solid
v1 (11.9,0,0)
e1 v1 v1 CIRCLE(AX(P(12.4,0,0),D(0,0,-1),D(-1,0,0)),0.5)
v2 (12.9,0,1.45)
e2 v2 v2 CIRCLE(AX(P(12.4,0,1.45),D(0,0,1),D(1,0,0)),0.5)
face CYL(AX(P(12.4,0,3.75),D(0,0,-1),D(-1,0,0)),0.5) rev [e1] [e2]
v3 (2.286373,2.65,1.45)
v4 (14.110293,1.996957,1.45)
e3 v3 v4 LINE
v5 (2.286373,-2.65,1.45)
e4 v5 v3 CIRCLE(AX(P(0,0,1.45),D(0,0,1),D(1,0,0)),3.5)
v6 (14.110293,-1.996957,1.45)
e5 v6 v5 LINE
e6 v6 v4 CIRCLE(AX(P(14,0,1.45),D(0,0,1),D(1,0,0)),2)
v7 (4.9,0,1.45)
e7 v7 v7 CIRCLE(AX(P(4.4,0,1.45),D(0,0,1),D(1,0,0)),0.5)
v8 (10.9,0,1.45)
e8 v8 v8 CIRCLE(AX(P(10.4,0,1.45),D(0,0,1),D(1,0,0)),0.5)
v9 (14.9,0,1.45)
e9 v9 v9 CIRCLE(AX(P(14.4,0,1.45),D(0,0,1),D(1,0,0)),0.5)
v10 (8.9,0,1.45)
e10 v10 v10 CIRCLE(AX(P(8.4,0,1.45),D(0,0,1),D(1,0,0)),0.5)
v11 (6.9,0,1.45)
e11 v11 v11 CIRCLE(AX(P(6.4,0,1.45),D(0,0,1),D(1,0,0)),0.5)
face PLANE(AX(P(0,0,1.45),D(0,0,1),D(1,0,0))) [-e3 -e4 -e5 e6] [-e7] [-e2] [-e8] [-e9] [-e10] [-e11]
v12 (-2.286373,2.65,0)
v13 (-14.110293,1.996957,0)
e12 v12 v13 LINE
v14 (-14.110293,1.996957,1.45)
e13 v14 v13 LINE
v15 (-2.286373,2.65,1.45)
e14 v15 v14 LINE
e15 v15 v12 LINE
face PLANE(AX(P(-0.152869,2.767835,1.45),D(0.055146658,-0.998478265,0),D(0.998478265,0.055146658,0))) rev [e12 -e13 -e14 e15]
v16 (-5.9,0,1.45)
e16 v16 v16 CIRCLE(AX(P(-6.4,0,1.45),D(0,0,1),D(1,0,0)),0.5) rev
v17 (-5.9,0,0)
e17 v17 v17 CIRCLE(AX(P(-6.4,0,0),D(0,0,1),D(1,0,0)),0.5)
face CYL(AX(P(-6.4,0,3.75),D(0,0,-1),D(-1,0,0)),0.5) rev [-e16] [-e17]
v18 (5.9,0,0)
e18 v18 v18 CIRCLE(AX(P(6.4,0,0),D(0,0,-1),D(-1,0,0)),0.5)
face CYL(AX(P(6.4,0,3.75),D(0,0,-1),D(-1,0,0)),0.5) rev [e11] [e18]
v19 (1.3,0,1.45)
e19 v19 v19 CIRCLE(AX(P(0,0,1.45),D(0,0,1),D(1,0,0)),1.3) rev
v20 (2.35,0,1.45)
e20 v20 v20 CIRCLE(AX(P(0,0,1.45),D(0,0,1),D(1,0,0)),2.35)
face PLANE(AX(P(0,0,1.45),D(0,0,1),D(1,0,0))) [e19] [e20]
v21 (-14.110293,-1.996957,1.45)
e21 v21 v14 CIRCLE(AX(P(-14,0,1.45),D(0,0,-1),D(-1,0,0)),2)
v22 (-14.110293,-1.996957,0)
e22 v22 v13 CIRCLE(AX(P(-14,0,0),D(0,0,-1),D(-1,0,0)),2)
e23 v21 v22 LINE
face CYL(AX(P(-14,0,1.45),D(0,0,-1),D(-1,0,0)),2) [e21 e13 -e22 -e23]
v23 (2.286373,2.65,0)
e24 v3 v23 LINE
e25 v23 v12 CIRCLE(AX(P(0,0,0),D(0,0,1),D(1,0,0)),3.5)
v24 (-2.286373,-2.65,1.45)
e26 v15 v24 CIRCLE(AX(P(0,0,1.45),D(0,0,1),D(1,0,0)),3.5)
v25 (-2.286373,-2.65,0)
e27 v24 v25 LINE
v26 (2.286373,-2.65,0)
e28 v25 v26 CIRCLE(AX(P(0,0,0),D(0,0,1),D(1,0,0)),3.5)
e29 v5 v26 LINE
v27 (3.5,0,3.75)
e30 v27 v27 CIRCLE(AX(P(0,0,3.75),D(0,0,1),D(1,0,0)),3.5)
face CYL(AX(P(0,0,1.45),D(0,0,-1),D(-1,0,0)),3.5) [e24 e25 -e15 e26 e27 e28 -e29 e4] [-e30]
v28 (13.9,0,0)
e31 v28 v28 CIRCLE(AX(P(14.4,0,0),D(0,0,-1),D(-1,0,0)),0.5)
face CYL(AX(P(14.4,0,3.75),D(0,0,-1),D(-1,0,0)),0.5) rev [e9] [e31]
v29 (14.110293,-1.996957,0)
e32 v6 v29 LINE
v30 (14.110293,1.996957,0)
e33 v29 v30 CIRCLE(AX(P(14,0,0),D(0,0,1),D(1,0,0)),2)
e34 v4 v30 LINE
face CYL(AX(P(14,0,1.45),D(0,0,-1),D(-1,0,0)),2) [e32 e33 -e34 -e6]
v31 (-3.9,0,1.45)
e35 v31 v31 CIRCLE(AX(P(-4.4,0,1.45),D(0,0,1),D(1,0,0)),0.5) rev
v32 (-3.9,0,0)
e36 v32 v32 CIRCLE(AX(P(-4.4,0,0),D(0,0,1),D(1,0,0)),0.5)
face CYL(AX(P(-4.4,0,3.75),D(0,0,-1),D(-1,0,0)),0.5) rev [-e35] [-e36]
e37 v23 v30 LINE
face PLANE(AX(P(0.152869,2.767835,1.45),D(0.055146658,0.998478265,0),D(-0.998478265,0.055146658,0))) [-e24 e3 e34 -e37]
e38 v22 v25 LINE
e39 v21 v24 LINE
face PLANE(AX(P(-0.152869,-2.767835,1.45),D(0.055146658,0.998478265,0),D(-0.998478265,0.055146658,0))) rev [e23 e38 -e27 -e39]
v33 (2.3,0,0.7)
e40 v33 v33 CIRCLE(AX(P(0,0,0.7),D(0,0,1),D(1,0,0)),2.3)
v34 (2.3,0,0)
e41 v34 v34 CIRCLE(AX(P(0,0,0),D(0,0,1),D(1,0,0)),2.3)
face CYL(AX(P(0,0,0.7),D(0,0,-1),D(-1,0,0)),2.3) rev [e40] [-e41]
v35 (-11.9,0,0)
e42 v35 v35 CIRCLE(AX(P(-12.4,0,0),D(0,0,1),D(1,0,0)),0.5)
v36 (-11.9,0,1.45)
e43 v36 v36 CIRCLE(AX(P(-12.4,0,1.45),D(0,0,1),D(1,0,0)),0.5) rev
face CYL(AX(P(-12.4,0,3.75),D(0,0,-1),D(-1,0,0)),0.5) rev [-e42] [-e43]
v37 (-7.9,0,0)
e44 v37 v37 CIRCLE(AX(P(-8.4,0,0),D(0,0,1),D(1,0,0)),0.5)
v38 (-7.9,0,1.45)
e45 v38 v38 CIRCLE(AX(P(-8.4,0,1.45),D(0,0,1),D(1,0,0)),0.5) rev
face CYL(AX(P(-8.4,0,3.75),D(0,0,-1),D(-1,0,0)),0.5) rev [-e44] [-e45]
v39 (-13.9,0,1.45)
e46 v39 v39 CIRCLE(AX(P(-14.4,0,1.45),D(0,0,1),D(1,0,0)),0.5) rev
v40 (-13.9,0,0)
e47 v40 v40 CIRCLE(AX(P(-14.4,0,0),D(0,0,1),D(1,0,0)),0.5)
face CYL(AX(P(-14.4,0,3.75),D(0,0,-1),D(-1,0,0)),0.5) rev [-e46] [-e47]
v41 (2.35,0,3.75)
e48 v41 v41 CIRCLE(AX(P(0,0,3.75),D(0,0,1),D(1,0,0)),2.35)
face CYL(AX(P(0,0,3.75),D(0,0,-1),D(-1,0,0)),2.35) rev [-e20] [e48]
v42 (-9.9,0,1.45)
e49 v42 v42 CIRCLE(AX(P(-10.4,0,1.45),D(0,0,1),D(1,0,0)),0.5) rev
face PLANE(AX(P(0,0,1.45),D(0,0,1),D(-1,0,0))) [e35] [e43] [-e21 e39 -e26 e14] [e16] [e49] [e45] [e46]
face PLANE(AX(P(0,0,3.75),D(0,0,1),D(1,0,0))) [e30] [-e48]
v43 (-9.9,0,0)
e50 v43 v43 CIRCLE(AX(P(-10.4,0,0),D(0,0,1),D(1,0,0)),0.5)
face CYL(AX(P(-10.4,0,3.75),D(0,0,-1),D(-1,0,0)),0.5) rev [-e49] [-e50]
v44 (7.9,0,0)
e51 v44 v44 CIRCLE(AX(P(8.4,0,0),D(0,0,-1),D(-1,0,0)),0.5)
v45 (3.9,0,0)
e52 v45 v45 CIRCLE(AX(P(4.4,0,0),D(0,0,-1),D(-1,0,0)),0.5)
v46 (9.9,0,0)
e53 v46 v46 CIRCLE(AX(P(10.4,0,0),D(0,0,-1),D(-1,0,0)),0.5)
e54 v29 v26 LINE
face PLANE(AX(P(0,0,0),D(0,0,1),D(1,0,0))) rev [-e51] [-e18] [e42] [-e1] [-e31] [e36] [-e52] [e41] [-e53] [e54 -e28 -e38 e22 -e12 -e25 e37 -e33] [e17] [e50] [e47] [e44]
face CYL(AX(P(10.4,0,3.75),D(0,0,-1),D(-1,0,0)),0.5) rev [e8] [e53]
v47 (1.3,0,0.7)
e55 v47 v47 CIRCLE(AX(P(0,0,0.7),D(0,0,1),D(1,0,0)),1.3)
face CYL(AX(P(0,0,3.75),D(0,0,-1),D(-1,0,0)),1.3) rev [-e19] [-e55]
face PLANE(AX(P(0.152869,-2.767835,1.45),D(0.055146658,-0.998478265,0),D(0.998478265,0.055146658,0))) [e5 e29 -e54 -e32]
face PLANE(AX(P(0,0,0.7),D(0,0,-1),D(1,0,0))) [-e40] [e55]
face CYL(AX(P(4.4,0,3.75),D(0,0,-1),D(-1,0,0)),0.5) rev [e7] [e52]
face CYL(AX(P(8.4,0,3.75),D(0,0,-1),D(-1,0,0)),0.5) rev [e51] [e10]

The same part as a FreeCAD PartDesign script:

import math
import FreeCAD as App
import Part
import Sketcher

V = App.Vector

doc = App.newDocument("Part")
body = doc.addObject("PartDesign::Body", "Body")

sketch1 = doc.addObject("Sketcher::SketchObject", "Sketch")
body.addObject(sketch1)
sketch1.AttachmentSupport = (doc.XY_Plane, [""])
sketch1.MapMode = "FlatFace"
sketch1.addGeometry([
    Part.ArcOfCircle(Part.Circle(V(0, 0, 0), V(0, 0, 1), 3.5), math.radians(49.212962), math.radians(124.464489)),
    Part.ArcOfCircle(Part.Circle(V(0, 0, 0), V(0, 0, 1), 3.5), math.radians(124.464489), math.radians(235.535511)),
    Part.ArcOfCircle(Part.Circle(V(0, 0, 0), V(0, 0, 1), 3.5), math.radians(-124.464489), math.radians(-49.212962)),
    Part.LineSegment(V(2.286373, -2.65, 0), V(14.110293, -1.996957, 0)),
    Part.ArcOfCircle(Part.Circle(V(14, 0, 0), V(0, 0, 1), 2), math.radians(-86.838725), math.radians(86.838726)),
    Part.LineSegment(V(14.110293, 1.996957, 0), V(2.286373, 2.65, 0)),
], False)
sketch1.addConstraint([
    Sketcher.Constraint("Tangent", 0, 2, 1, 1),
    Sketcher.Constraint("Tangent", 1, 2, 2, 1),
    Sketcher.Constraint("Coincident", 2, 2, 3, 1),
    Sketcher.Constraint("Tangent", 3, 2, 4, 1),
    Sketcher.Constraint("Tangent", 4, 2, 5, 1),
    Sketcher.Constraint("Coincident", 5, 2, 0, 1),
    Sketcher.Constraint("Coincident", 0, 3, -1, 1),
    Sketcher.Constraint("Coincident", 2, 3, -1, 1),
    Sketcher.Constraint("Symmetric", 3, 2, 4, 2, -1),
    Sketcher.Constraint("Vertical", 0, 2, 1, 2),
    Sketcher.Constraint("Radius", 4, 2.0),
    Sketcher.Constraint("Radius", 0, 3.5),
    Sketcher.Constraint("DistanceX", -1, 1, 4, 3, 14.0),
    Sketcher.Constraint("DistanceY", 2, 2, 5, 2, 5.3),
    Sketcher.Constraint("DistanceY", -1, 1, 0, 2, 2.88567),
])
pad1 = doc.addObject("PartDesign::Pad", "Pad")
body.addObject(pad1)
pad1.Profile = sketch1
pad1.Length = 1.45

sketch2 = doc.addObject("Sketcher::SketchObject", "Sketch001")
body.addObject(sketch2)
sketch2.AttachmentSupport = (doc.XY_Plane, [""])
sketch2.MapMode = "FlatFace"
sketch2.AttachmentOffset = App.Placement(V(0, 0, 1.45), App.Rotation())
sketch2.addGeometry([
    Part.Circle(V(0, 0, 0), V(0, 0, 1), 3.5),
    Part.Circle(V(0, 0, 0), V(0, 0, 1), 2.35),
], False)
sketch2.addConstraint([
    Sketcher.Constraint("Coincident", 0, 3, -1, 1),
    Sketcher.Constraint("Coincident", 1, 3, -1, 1),
    Sketcher.Constraint("Diameter", 0, 7.0),
    Sketcher.Constraint("Diameter", 1, 4.7),
])
pad2 = doc.addObject("PartDesign::Pad", "Pad001")
body.addObject(pad2)
pad2.Profile = sketch2
pad2.Length = 2.3

sketch3 = doc.addObject("Sketcher::SketchObject", "Sketch002")
body.addObject(sketch3)
sketch3.AttachmentSupport = (doc.XY_Plane, [""])
sketch3.MapMode = "FlatFace"
sketch3.addGeometry(Part.Circle(V(0, 0, 0), V(0, 0, 1), 2.3), False)
sketch3.addConstraint([
    Sketcher.Constraint("Coincident", 0, 3, -1, 1),
    Sketcher.Constraint("Diameter", 0, 4.6),
])
pocket1 = doc.addObject("PartDesign::Pocket", "Pocket")
body.addObject(pocket1)
pocket1.Profile = sketch3
pocket1.Length = 0.7
pocket1.Reversed = True

sketch4 = doc.addObject("Sketcher::SketchObject", "Sketch003")
body.addObject(sketch4)
sketch4.AttachmentSupport = (doc.XY_Plane, [""])
sketch4.MapMode = "FlatFace"
sketch4.AttachmentOffset = App.Placement(V(0, 0, 0.7), App.Rotation())
sketch4.addGeometry(Part.Circle(V(0, 0, 0), V(0, 0, 1), 1.3), False)
sketch4.addConstraint([
    Sketcher.Constraint("Coincident", 0, 3, -1, 1),
    Sketcher.Constraint("Diameter", 0, 2.6),
])
pocket2 = doc.addObject("PartDesign::Pocket", "Pocket001")
body.addObject(pocket2)
pocket2.Profile = sketch4
pocket2.Type = "ThroughAll"
pocket2.Reversed = True

sketch5 = doc.addObject("Sketcher::SketchObject", "Sketch004")
body.addObject(sketch5)
sketch5.AttachmentSupport = (doc.XY_Plane, [""])
sketch5.MapMode = "FlatFace"
sketch5.addGeometry(Part.Circle(V(14.4, 0, 0), V(0, 0, 1), 0.5), False)
sketch5.addConstraint([
    Sketcher.Constraint("PointOnObject", 0, 3, -1),
    Sketcher.Constraint("Diameter", 0, 1.0),
    Sketcher.Constraint("DistanceX", -1, 1, 0, 3, 14.4),
])
pocket3 = doc.addObject("PartDesign::Pocket", "Pocket002")
body.addObject(pocket3)
pocket3.Profile = sketch5
pocket3.Type = "ThroughAll"
pocket3.Reversed = True
doc.recompute()

linearpattern = doc.addObject("PartDesign::LinearPattern", "LinearPattern")
body.addObject(linearpattern)
linearpattern.Originals = [pocket3]
linearpattern.Direction = (doc.X_Axis, [""])
linearpattern.Mode = "offset"
linearpattern.Offset = 2
linearpattern.Occurrences = 6
linearpattern.Reversed = True
body.Tip = linearpattern
doc.recompute()

mirrored = doc.addObject("PartDesign::Mirrored", "Mirrored")
body.addObject(mirrored)
mirrored.Originals = [pad1, pocket1, pocket2, pocket3]
mirrored.MirrorPlane = (doc.YZ_Plane, [""])
body.Tip = mirrored

sketch6 = doc.addObject("Sketcher::SketchObject", "Sketch005")
body.addObject(sketch6)
sketch6.AttachmentSupport = (doc.XY_Plane, [""])
sketch6.MapMode = "FlatFace"
sketch6.addGeometry(Part.Circle(V(-12.4, 0, 0), V(0, 0, 1), 0.5), False)
sketch6.addConstraint([
    Sketcher.Constraint("PointOnObject", 0, 3, -1),
    Sketcher.Constraint("Diameter", 0, 1.0),
    Sketcher.Constraint("DistanceX", 0, 3, -1, 1, 12.4),
])
pocket4 = doc.addObject("PartDesign::Pocket", "Pocket003")
body.addObject(pocket4)
pocket4.Profile = sketch6
pocket4.Type = "ThroughAll"
pocket4.Reversed = True

sketch7 = doc.addObject("Sketcher::SketchObject", "Sketch006")
body.addObject(sketch7)
sketch7.AttachmentSupport = (doc.XY_Plane, [""])
sketch7.MapMode = "FlatFace"
sketch7.addGeometry(Part.Circle(V(-10.4, 0, 0), V(0, 0, 1), 0.5), False)
sketch7.addConstraint([
    Sketcher.Constraint("PointOnObject", 0, 3, -1),
    Sketcher.Constraint("Diameter", 0, 1.0),
    Sketcher.Constraint("DistanceX", 0, 3, -1, 1, 10.4),
])
pocket5 = doc.addObject("PartDesign::Pocket", "Pocket004")
body.addObject(pocket5)
pocket5.Profile = sketch7
pocket5.Type = "ThroughAll"
pocket5.Reversed = True

sketch8 = doc.addObject("Sketcher::SketchObject", "Sketch007")
body.addObject(sketch8)
sketch8.AttachmentSupport = (doc.XY_Plane, [""])
sketch8.MapMode = "FlatFace"
sketch8.addGeometry(Part.Circle(V(-8.4, 0, 0), V(0, 0, 1), 0.5), False)
sketch8.addConstraint([
    Sketcher.Constraint("PointOnObject", 0, 3, -1),
    Sketcher.Constraint("Diameter", 0, 1.0),
    Sketcher.Constraint("DistanceX", 0, 3, -1, 1, 8.4),
])
pocket6 = doc.addObject("PartDesign::Pocket", "Pocket005")
body.addObject(pocket6)
pocket6.Profile = sketch8
pocket6.Type = "ThroughAll"
pocket6.Reversed = True

sketch9 = doc.addObject("Sketcher::SketchObject", "Sketch008")
body.addObject(sketch9)
sketch9.AttachmentSupport = (doc.XY_Plane, [""])
sketch9.MapMode = "FlatFace"
sketch9.addGeometry(Part.Circle(V(-6.4, 0, 0), V(0, 0, 1), 0.5), False)
sketch9.addConstraint([
    Sketcher.Constraint("PointOnObject", 0, 3, -1),
    Sketcher.Constraint("Diameter", 0, 1.0),
    Sketcher.Constraint("DistanceX", 0, 3, -1, 1, 6.4),
])
pocket7 = doc.addObject("PartDesign::Pocket", "Pocket006")
body.addObject(pocket7)
pocket7.Profile = sketch9
pocket7.Type = "ThroughAll"
pocket7.Reversed = True

sketch10 = doc.addObject("Sketcher::SketchObject", "Sketch009")
body.addObject(sketch10)
sketch10.AttachmentSupport = (doc.XY_Plane, [""])
sketch10.MapMode = "FlatFace"
sketch10.addGeometry(Part.Circle(V(-4.4, 0, 0), V(0, 0, 1), 0.5), False)
sketch10.addConstraint([
    Sketcher.Constraint("PointOnObject", 0, 3, -1),
    Sketcher.Constraint("Diameter", 0, 1.0),
    Sketcher.Constraint("DistanceX", 0, 3, -1, 1, 4.4),
])
pocket8 = doc.addObject("PartDesign::Pocket", "Pocket007")
body.addObject(pocket8)
pocket8.Profile = sketch10
pocket8.Type = "ThroughAll"
pocket8.Reversed = True

doc.recompute()
